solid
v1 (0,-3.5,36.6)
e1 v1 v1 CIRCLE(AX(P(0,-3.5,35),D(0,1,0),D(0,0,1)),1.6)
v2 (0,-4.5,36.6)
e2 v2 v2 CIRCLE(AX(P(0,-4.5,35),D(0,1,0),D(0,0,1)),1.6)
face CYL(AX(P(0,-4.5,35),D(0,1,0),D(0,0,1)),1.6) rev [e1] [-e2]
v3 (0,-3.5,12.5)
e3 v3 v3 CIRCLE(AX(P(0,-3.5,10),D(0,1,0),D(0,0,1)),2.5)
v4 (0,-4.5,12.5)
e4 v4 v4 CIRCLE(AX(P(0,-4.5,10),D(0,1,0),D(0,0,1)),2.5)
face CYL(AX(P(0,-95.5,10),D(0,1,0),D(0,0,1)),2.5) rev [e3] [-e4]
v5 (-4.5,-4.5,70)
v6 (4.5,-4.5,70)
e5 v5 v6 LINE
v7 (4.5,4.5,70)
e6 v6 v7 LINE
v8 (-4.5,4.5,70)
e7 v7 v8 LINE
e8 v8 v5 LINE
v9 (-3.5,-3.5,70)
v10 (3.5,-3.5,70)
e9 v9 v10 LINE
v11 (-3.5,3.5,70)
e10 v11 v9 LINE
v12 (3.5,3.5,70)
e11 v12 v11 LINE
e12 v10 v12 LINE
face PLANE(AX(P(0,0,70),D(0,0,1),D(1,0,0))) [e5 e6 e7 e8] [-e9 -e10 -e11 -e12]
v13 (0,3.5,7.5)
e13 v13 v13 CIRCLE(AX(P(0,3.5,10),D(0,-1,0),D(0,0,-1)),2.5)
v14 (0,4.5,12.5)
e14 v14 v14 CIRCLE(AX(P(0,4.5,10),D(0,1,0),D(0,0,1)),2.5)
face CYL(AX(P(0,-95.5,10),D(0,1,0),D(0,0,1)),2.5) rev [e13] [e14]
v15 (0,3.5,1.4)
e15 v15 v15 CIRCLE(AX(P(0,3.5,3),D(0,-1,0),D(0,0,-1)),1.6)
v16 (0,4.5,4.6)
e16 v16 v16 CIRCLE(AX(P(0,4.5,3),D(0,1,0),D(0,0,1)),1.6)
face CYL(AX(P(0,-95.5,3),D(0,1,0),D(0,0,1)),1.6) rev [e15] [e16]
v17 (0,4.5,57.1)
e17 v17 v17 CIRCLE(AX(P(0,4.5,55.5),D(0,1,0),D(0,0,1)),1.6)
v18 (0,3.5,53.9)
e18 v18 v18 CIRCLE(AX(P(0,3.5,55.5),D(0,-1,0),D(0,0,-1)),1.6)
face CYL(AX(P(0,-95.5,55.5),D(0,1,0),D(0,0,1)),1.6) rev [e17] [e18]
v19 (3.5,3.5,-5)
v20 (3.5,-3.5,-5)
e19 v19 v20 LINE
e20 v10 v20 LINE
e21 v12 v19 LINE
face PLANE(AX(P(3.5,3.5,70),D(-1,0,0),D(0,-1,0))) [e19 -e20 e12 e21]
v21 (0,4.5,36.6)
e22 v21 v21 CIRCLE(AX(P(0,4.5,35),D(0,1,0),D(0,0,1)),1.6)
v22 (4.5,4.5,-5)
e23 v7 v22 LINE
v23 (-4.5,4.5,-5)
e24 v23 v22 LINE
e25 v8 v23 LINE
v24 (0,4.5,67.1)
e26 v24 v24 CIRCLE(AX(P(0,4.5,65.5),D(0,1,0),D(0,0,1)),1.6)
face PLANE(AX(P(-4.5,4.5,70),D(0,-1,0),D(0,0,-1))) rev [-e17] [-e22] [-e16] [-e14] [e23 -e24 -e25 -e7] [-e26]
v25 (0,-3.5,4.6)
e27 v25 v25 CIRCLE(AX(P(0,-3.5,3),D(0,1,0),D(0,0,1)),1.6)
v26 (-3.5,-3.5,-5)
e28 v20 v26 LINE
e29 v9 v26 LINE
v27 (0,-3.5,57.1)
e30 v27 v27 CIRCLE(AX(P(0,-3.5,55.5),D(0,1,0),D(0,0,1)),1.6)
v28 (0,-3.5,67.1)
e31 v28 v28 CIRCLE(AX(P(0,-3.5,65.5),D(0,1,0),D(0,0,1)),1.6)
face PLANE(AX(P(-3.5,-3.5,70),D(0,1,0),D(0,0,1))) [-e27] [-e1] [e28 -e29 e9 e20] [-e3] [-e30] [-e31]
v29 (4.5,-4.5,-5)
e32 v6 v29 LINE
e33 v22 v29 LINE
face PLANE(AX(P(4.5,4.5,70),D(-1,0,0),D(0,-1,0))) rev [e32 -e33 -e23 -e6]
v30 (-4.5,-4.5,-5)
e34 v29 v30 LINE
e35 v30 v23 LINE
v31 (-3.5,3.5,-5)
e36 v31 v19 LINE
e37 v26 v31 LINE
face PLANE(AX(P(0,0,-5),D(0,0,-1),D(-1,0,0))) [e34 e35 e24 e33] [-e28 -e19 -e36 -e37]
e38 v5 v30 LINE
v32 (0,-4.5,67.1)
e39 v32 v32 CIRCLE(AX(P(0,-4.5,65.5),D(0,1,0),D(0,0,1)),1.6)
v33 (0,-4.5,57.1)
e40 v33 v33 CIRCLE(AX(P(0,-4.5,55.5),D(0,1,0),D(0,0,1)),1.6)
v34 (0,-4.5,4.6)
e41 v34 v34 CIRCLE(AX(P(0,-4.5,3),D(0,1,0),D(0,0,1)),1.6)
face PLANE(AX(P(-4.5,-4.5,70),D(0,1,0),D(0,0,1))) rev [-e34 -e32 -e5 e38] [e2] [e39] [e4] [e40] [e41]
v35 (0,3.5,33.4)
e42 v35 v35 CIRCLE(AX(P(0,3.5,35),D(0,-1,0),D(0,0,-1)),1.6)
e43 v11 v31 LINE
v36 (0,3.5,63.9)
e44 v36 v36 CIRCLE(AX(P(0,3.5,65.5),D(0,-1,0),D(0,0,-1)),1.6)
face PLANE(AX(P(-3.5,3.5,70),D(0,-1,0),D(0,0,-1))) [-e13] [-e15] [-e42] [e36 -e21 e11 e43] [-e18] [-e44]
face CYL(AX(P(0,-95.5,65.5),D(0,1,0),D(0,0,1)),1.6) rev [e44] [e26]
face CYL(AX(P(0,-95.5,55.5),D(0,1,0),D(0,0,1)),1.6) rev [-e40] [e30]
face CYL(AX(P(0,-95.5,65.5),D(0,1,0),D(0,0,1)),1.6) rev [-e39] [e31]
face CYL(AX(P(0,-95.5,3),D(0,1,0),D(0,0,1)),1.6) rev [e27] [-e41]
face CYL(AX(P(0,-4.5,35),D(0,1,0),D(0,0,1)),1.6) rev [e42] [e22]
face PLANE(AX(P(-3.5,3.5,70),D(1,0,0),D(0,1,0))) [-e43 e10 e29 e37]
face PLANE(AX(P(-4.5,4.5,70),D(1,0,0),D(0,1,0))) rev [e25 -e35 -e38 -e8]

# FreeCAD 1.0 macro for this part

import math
import FreeCAD as App
import Part
import Sketcher
from FreeCAD import Vector
Q = App.Units.Quantity


def add_polygon(sketch, points):
    """Adds a closed chain of lines whose ends are joined by coincident constraints."""
    first, n = sketch.GeometryCount, len(points)
    for a, b in zip(points, points[1:] + points[:1]):
        sketch.addGeometry(Part.LineSegment(App.Vector(*a, 0), App.Vector(*b, 0)), False)
    for i in range(n):
        sketch.addConstraint(Sketcher.Constraint("Coincident", first + i, 2, first + (i + 1) % n, 1))

doc = App.newDocument("Part")
body = doc.addObject("PartDesign::Body", "Body")

# Sketch on XY plane
sketch1 = body.newObject("Sketcher::SketchObject", "Sketch")
sketch1.AttachmentSupport = (doc.getObject("XY_Plane"), [""])
sketch1.MapMode = "FlatFace"
add_polygon(sketch1, [(-4, 4), (-4, -4), (4, -4), (4, 4)])  # lines 0-3
add_polygon(sketch1, [(4, -4), (-4, -4), (-4, 4), (4, 4)])  # lines 4-7
sketch1.addConstraint([
    Sketcher.Constraint("Vertical", 0),
    Sketcher.Constraint("Horizontal", 1),
    Sketcher.Constraint("Vertical", 2),
    Sketcher.Constraint("Horizontal", 3),
    Sketcher.Constraint("Horizontal", 4),
    Sketcher.Constraint("Vertical", 5),
    Sketcher.Constraint("Horizontal", 6),
    Sketcher.Constraint("Vertical", 7),
    Sketcher.Constraint("Symmetric", 0, 2, 2, 2, -1, 1),
    Sketcher.Constraint("Symmetric", 4, 2, 6, 2, -1, 1),
    Sketcher.Constraint("Equal", 3, 0),
    Sketcher.Constraint("Equal", 6, 5),
    Sketcher.Constraint("DistanceX", 1, 1, 1, 2, Q("9 mm")),
    Sketcher.Constraint("DistanceX", 4, 2, 4, 1, Q("7 mm")),
])
pad1 = body.newObject("PartDesign::Pad", "Pad")
pad1.Profile = sketch1
pad1.Length = 70

# Sketch on XZ plane
sketch2 = body.newObject("Sketcher::SketchObject", "Sketch001")
sketch2.AttachmentSupport = (doc.getObject("XZ_Plane"), [""])
sketch2.MapMode = "FlatFace"
sketch2.AttachmentOffset = App.Placement(Vector(0, 0, -4.5), App.Rotation())
sketch2.addGeometry([
    Part.ArcOfCircle(Part.Circle(Vector(0, 10, 0), Vector(0, 0, 1), 2.5), math.radians(-90), math.radians(0)),
    Part.ArcOfCircle(Part.Circle(Vector(0, 10, 0), Vector(0, 0, 1), 2.5), math.radians(90), math.radians(270)),
    Part.ArcOfCircle(Part.Circle(Vector(0, 10, 0), Vector(0, 0, 1), 2.5), math.radians(0), math.radians(90)),
], False)
sketch2.addConstraint([
    Sketcher.Constraint("Tangent", 0, 1, 1, 2),
    Sketcher.Constraint("Tangent", 1, 1, 2, 2),
    Sketcher.Constraint("Tangent", 2, 1, 0, 2),
    Sketcher.Constraint("PointOnObject", 0, 3, -2),
    Sketcher.Constraint("PointOnObject", 0, 1, -2),
    Sketcher.Constraint("PointOnObject", 1, 1, -2),
    Sketcher.Constraint("Horizontal", 1, 3, 2, 1),
    Sketcher.Constraint("Radius", 0, Q("2.5 mm")),
    Sketcher.Constraint("DistanceY", -1, 1, 0, 3, Q("10 mm")),
])
pocket1 = body.newObject("PartDesign::Pocket", "Pocket")
pocket1.Profile = sketch2
pocket1.Length = 100
pocket1.Reversed = True

# Sketch on XZ plane
sketch3 = body.newObject("Sketcher::SketchObject", "Sketch002")
sketch3.AttachmentSupport = (doc.getObject("XZ_Plane"), [""])
sketch3.MapMode = "FlatFace"
sketch3.AttachmentOffset = App.Placement(Vector(0, 0, -4.5), App.Rotation())
sketch3.addGeometry(Part.Circle(Vector(0, 3, 0), Vector(0, 0, 1), 1.6), False)
sketch3.addConstraint([
    Sketcher.Constraint("PointOnObject", 0, 3, -2),
    Sketcher.Constraint("Diameter", 0, Q("3.2 mm")),
    Sketcher.Constraint("DistanceY", -1, 1, 0, 3, Q("3 mm")),
])
pocket2 = body.newObject("PartDesign::Pocket", "Pocket001")
pocket2.Profile = sketch3
pocket2.Length = 100
pocket2.Reversed = True

# Sketch on XZ plane
sketch4 = body.newObject("Sketcher::SketchObject", "Sketch003")
sketch4.AttachmentSupport = (doc.getObject("XZ_Plane"), [""])
sketch4.MapMode = "FlatFace"
sketch4.AttachmentOffset = App.Placement(Vector(0, 0, -4.5), App.Rotation())
sketch4.addGeometry([
    Part.Circle(Vector(0, 65.5, 0), Vector(0, 0, 1), 1.6),
    Part.Circle(Vector(0, 55.5, 0), Vector(0, 0, 1), 1.6),
], False)
sketch4.addConstraint([
    Sketcher.Constraint("Equal", 0, 1),
    Sketcher.Constraint("PointOnObject", 0, 3, -2),
    Sketcher.Constraint("PointOnObject", 1, 3, -2),
    Sketcher.Constraint("Diameter", 0, Q("3.2 mm")),
    Sketcher.Constraint("DistanceY", 1, 3, 0, 3, Q("10 mm")),
    Sketcher.Constraint("DistanceY", -1, 1, 0, 3, Q("65.5 mm")),
])
pocket3 = body.newObject("PartDesign::Pocket", "Pocket002")
pocket3.Profile = sketch4
pocket3.Length = 100
pocket3.Reversed = True

# Sketch on XZ plane
sketch5 = body.newObject("Sketcher::SketchObject", "Sketch004")
sketch5.AttachmentSupport = (doc.getObject("XZ_Plane"), [""])
sketch5.MapMode = "FlatFace"
sketch5.AttachmentOffset = App.Placement(Vector(0, 0, -4.5), App.Rotation())
sketch5.addGeometry(Part.Circle(Vector(0, 35, 0), Vector(0, 0, 1), 1.6), False)
sketch5.addConstraint([
    Sketcher.Constraint("PointOnObject", 0, 3, -2),
    Sketcher.Constraint("Diameter", 0, Q("3.2 mm")),
    Sketcher.Constraint("DistanceY", -1, 1, 0, 3, Q("35 mm")),
])
pocket4 = body.newObject("PartDesign::Pocket", "Pocket003")
pocket4.Profile = sketch5
pocket4.Type = "ThroughAll"
pocket4.Reversed = True

# Sketch on XY plane
sketch6 = body.newObject("Sketcher::SketchObject", "Sketch005")
sketch6.AttachmentSupport = (doc.getObject("XY_Plane"), [""])
sketch6.MapMode = "FlatFace"
add_polygon(sketch6, [(4, 4), (4, -4), (-4, -4), (-4, 4)])  # lines 0-3
add_polygon(sketch6, [(-4, -4), (4, -4), (4, 4), (-4, 4)])  # lines 4-7
sketch6.addConstraint([
    Sketcher.Constraint("Vertical", 0),
    Sketcher.Constraint("Horizontal", 1),
    Sketcher.Constraint("Vertical", 2),
    Sketcher.Constraint("Horizontal", 3),
    Sketcher.Constraint("Horizontal", 4),
    Sketcher.Constraint("Vertical", 5),
    Sketcher.Constraint("Horizontal", 6),
    Sketcher.Constraint("Vertical", 7),
    Sketcher.Constraint("Symmetric", 0, 2, 2, 2, -1, 1),
    Sketcher.Constraint("Symmetric", 4, 2, 6, 2, -1, 1),
    Sketcher.Constraint("Equal", 3, 0),
    Sketcher.Constraint("Equal", 6, 5),
    Sketcher.Constraint("DistanceX", 1, 2, 1, 1, Q("9 mm")),
    Sketcher.Constraint("DistanceX", 4, 1, 4, 2, Q("7 mm")),
])
pad2 = body.newObject("PartDesign::Pad", "Pad001")
pad2.Profile = sketch6
pad2.Length = 5
pad2.Reversed = True

doc.recompute()
